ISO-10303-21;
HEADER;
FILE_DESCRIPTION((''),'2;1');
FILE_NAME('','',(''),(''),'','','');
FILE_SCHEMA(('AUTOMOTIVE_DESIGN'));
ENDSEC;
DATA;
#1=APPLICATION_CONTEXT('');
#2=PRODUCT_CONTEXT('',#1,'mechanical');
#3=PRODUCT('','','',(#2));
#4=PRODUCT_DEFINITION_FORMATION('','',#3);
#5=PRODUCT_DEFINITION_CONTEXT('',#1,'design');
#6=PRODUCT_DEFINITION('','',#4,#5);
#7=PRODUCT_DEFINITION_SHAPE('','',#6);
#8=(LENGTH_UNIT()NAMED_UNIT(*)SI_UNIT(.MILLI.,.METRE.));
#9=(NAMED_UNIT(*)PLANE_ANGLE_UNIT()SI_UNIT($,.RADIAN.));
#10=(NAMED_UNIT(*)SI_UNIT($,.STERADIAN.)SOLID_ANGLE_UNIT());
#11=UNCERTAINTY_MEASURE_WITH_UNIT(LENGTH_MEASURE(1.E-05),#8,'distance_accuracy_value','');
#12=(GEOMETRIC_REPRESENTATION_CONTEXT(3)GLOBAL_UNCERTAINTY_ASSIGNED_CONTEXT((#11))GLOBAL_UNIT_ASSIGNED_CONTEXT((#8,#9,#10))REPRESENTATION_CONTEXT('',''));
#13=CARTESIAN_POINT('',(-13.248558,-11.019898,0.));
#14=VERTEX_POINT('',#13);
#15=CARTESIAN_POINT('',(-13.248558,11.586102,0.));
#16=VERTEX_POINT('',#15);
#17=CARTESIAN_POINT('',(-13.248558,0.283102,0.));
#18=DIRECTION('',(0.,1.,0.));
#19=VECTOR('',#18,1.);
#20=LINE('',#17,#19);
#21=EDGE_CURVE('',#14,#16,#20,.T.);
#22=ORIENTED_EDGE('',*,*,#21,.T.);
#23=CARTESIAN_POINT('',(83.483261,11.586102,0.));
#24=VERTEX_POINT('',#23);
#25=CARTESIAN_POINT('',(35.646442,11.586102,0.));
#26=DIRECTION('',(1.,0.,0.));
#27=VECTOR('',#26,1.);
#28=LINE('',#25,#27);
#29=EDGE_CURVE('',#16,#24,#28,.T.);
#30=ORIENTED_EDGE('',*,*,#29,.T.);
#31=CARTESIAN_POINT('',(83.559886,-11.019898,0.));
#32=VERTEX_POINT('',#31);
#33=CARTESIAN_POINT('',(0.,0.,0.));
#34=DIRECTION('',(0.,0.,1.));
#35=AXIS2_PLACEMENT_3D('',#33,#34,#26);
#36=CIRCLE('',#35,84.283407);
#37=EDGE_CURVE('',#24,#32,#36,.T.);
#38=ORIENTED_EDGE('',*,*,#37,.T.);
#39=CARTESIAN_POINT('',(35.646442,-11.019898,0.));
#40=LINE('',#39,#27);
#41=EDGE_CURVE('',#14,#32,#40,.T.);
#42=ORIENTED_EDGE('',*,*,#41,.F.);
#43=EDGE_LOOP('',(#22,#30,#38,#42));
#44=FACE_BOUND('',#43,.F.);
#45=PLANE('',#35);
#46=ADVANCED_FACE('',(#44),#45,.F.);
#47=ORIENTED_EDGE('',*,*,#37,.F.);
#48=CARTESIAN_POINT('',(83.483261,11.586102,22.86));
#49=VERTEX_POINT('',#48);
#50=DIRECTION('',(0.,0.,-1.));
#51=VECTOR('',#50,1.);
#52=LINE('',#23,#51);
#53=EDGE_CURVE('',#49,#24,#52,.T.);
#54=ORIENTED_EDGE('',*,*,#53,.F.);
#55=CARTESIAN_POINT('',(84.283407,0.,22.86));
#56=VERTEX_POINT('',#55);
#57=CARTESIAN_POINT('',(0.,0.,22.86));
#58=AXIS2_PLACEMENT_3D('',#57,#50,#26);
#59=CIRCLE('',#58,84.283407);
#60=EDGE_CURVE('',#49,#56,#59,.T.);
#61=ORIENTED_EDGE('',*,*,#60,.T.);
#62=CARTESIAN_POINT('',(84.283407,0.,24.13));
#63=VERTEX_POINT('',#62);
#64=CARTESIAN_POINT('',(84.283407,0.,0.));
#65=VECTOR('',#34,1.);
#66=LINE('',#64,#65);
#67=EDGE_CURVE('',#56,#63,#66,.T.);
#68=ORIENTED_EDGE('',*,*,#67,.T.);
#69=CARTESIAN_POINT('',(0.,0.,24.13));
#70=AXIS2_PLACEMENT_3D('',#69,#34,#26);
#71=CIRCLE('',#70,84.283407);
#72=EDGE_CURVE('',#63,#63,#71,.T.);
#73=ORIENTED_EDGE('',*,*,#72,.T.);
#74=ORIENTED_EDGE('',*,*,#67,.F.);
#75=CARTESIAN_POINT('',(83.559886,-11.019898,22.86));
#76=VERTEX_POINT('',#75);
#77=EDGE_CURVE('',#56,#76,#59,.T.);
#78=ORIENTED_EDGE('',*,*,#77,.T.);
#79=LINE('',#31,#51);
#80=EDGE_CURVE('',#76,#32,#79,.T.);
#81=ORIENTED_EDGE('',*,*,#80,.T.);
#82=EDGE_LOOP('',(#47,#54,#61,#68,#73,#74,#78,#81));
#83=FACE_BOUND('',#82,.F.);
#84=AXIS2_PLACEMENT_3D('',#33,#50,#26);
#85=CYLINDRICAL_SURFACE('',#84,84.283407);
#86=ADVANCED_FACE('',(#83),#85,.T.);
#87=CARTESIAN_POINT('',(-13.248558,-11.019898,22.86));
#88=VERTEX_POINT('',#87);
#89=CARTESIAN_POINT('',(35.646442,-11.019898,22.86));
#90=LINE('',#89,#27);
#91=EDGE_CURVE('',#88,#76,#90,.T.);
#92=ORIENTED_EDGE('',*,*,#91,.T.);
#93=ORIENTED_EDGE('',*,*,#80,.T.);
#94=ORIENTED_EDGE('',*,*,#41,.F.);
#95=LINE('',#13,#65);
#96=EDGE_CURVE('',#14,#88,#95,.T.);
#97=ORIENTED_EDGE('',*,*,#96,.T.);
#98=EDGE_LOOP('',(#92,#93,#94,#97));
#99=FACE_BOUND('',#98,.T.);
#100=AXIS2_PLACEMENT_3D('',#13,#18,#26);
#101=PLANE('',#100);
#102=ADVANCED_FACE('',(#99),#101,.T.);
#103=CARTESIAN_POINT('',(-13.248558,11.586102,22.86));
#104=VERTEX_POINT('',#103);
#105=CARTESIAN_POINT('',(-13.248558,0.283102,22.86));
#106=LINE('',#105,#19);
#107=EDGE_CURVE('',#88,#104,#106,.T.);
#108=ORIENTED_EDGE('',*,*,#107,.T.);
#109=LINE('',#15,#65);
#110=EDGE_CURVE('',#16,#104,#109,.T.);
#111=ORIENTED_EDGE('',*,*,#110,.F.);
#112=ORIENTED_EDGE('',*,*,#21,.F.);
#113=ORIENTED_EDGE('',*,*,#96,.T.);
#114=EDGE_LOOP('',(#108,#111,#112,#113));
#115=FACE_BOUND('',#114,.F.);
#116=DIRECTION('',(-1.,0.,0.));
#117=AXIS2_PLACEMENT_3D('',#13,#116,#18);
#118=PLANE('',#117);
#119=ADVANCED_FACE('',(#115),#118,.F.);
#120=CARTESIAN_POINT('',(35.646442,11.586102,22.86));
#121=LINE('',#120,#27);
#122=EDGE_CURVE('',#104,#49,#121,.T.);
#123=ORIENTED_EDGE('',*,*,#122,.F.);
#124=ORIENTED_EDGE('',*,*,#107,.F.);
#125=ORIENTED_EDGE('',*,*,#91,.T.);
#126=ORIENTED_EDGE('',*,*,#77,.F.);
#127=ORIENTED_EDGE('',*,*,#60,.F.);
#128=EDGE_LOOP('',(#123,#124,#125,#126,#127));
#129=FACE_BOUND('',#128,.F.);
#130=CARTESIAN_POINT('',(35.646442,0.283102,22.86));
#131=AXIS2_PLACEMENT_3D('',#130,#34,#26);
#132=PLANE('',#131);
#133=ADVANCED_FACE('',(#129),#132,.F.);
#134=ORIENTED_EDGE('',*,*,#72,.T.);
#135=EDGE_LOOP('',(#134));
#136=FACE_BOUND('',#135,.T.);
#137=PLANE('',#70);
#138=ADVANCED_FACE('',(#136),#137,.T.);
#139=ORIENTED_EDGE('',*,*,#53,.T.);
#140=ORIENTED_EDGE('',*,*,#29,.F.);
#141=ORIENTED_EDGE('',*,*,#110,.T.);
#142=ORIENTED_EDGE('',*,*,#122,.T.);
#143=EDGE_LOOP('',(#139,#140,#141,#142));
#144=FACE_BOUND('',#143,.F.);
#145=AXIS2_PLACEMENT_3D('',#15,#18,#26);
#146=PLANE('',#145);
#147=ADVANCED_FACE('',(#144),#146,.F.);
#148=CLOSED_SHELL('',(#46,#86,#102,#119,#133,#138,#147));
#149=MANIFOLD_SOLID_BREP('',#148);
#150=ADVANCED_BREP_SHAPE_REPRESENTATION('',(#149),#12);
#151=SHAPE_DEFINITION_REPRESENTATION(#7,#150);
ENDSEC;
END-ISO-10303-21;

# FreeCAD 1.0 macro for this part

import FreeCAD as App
import Part
import Sketcher

V = App.Vector
Q = App.Units.Quantity

doc = App.newDocument("Part")
body = doc.addObject("PartDesign::Body", "Body")

sketch1 = doc.addObject("Sketcher::SketchObject", "Sketch")
body.addObject(sketch1)
sketch1.AttachmentSupport = (doc.XY_Plane, [""])
sketch1.MapMode = "FlatFace"
sketch1.addGeometry(Part.Circle(V(0, 0, 0), V(0, 0, 1), 84), False)
sketch1.addConstraint([
    Sketcher.Constraint("Coincident", 0, 3, -1, 1),
    Sketcher.Constraint("Diameter", 0, Q("168.566814 mm")),
])
pad1 = doc.addObject("PartDesign::Pad", "Pad")
body.addObject(pad1)
pad1.Profile = sketch1
pad1.Length = Q("0.95 in")

sketch2 = doc.addObject("Sketcher::SketchObject", "Sketch001")
body.addObject(sketch2)
sketch2.AttachmentSupport = (doc.XY_Plane, [""])
sketch2.MapMode = "FlatFace"
sketch2.addGeometry([
    Part.LineSegment(V(-13, 12, 0), V(-13, -11, 0)),
    Part.LineSegment(V(-13, -11, 0), V(85, -11, 0)),
    Part.LineSegment(V(85, -11, 0), V(85, 12, 0)),
    Part.LineSegment(V(85, 12, 0), V(-13, 12, 0)),
], False)
sketch2.addConstraint([
    Sketcher.Constraint("Coincident", 0, 2, 1, 1),
    Sketcher.Constraint("Coincident", 1, 2, 2, 1),
    Sketcher.Constraint("Coincident", 2, 2, 3, 1),
    Sketcher.Constraint("Coincident", 3, 2, 0, 1),
    Sketcher.Constraint("Vertical", 0),
    Sketcher.Constraint("Horizontal", 1),
    Sketcher.Constraint("Vertical", 2),
    Sketcher.Constraint("Horizontal", 3),
    Sketcher.Constraint("DistanceX", 1, 1, 1, 2, Q("3.85 in")),
    Sketcher.Constraint("DistanceY", 0, 2, 0, 1, Q("0.89 in")),
    Sketcher.Constraint("DistanceX", 0, 2, -1, 1, Q("13.248558 mm")),
    Sketcher.Constraint("DistanceY", 0, 2, -1, 1, Q("11.019898 mm")),
])
pocket1 = doc.addObject("PartDesign::Pocket", "Pocket")
body.addObject(pocket1)
pocket1.Profile = sketch2
pocket1.Length = Q("0.9 in")
pocket1.Reversed = True

doc.recompute()
